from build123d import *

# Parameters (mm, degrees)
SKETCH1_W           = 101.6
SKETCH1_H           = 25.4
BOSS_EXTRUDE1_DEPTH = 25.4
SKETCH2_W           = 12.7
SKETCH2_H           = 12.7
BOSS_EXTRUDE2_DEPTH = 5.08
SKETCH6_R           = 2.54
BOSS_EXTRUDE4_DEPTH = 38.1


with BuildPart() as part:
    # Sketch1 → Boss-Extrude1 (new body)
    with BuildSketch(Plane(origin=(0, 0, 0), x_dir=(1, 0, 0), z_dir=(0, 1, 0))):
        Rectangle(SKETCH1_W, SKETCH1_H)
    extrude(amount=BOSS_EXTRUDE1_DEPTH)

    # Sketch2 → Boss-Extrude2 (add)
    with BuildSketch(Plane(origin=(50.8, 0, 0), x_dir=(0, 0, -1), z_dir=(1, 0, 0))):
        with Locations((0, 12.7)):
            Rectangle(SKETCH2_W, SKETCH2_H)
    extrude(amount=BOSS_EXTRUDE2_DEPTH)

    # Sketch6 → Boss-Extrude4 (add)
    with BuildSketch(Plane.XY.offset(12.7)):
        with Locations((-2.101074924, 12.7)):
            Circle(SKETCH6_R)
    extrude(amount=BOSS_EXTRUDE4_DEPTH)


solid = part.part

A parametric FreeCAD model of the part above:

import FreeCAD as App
import Part
import Sketcher

V = App.Vector
Q = App.Units.Quantity


def add_polygon(sketch, points):
    """Adds a closed chain of lines whose ends are joined by coincident constraints."""
    first, n = sketch.GeometryCount, len(points)
    for a, b in zip(points, points[1:] + points[:1]):
        sketch.addGeometry(Part.LineSegment(App.Vector(*a, 0), App.Vector(*b, 0)), False)
    for i in range(n):
        sketch.addConstraint(Sketcher.Constraint("Coincident", first + i, 2, first + (i + 1) % n, 1))

doc = App.newDocument("Part")
body = doc.addObject("PartDesign::Body", "Body")

# Sketch on XZ plane
sketch1 = body.newObject("Sketcher::SketchObject", "Sketch")
sketch1.AttachmentSupport = (doc.getObject("XZ_Plane"), [""])
sketch1.MapMode = "FlatFace"
add_polygon(sketch1, [(-51, -13), (-51, 13), (51, 13), (51, -13)])  # lines 0-3
sketch1.addConstraint([
    Sketcher.Constraint("Vertical", 0),
    Sketcher.Constraint("Horizontal", 1),
    Sketcher.Constraint("Vertical", 2),
    Sketcher.Constraint("Horizontal", 3),
    Sketcher.Constraint("Symmetric", 0, 2, 2, 2, -1, 1),
    Sketcher.Constraint("DistanceX", 1, 1, 1, 2, Q("4 in")),
    Sketcher.Constraint("DistanceY", 0, 1, 0, 2, Q("1 in")),
])
pad1 = body.newObject("PartDesign::Pad", "Pad")
pad1.Profile = sketch1
pad1.Length = Q("1 in")
pad1.Reversed = True

# Sketch on YZ plane
sketch2 = body.newObject("Sketcher::SketchObject", "Sketch001")
sketch2.AttachmentSupport = (doc.getObject("YZ_Plane"), [""])
sketch2.MapMode = "FlatFace"
sketch2.AttachmentOffset = App.Placement(V(0, 0, 2 * 25.4), App.Rotation())
add_polygon(sketch2, [(19, 6), (6, 6), (6, -6), (19, -6)])  # lines 0-3
sketch2.addConstraint([
    Sketcher.Constraint("Horizontal", 0),
    Sketcher.Constraint("Vertical", 1),
    Sketcher.Constraint("Horizontal", 2),
    Sketcher.Constraint("Vertical", 3),
    Sketcher.Constraint("Equal", 2, 1),
    Sketcher.Constraint("DistanceX", 0, 2, 0, 1, Q("0.5 in")),
    Sketcher.Constraint("DistanceX", -1, 1, 0, 2, Q("0.25 in")),
    Sketcher.Constraint("DistanceY", -1, 1, 0, 2, Q("0.25 in")),
])
pad2 = body.newObject("PartDesign::Pad", "Pad001")
pad2.Profile = sketch2
pad2.Length = Q("0.2 in")

# Sketch on XY plane
sketch3 = body.newObject("Sketcher::SketchObject", "Sketch002")
sketch3.AttachmentSupport = (doc.getObject("XY_Plane"), [""])
sketch3.MapMode = "FlatFace"
sketch3.AttachmentOffset = App.Placement(V(0, 0, 0.5 * 25.4), App.Rotation())
sketch3.addGeometry(Part.Circle(V(-2.1, 12.7, 0), V(0, 0, 1), 2.5), False)
sketch3.addConstraint([
    Sketcher.Constraint("Diameter", 0, Q("0.2 in")),
    Sketcher.Constraint("DistanceY", -1, 1, 0, 3, Q("0.5 in")),
    Sketcher.Constraint("DistanceX", 0, 3, -1, 1, 2.101075),
])
pad3 = body.newObject("PartDesign::Pad", "Pad002")
pad3.Profile = sketch3
pad3.Length = Q("1.5 in")

doc.recompute()
